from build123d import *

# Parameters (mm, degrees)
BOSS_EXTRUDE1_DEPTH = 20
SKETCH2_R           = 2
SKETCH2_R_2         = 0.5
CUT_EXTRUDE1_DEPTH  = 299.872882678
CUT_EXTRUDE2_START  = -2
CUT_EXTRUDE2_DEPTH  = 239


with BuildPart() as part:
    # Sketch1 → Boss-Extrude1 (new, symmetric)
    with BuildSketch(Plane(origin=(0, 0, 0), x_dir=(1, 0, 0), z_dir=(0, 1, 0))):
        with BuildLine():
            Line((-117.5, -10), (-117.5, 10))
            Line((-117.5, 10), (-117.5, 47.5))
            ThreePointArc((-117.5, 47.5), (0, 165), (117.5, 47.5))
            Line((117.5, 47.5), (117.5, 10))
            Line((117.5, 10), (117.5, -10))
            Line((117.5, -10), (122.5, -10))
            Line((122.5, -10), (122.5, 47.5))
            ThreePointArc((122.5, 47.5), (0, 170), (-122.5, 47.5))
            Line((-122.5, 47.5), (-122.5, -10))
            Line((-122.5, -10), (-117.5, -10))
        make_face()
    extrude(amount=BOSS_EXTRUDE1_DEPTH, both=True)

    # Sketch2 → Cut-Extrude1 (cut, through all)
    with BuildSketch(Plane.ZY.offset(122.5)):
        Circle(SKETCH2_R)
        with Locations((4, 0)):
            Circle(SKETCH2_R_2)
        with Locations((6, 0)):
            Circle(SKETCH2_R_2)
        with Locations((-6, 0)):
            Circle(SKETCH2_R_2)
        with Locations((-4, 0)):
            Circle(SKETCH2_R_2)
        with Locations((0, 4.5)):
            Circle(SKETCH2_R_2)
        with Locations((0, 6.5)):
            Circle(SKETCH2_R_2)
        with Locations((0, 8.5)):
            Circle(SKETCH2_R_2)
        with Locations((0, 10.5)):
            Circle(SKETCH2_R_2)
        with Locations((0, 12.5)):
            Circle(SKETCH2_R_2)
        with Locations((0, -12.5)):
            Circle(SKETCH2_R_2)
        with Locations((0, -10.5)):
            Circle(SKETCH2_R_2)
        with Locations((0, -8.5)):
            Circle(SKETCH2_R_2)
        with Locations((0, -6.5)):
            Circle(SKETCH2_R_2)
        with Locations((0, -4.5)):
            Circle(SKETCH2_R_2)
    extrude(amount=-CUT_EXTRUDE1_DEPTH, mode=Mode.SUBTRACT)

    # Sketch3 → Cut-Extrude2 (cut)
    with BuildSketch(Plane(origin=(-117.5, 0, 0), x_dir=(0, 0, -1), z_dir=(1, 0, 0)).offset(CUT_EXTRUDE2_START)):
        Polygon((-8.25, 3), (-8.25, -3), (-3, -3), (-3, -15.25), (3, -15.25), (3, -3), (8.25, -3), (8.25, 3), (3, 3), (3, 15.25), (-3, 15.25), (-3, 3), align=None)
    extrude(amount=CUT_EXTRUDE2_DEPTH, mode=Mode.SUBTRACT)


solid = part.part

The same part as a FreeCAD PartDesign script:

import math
import FreeCAD as App
import Part
import Sketcher

V = App.Vector
Q = App.Units.Quantity

doc = App.newDocument("Part")
params = doc.addObject("Spreadsheet::Sheet", "Params")
for row, (alias, value) in enumerate([
    ("sketch1_radius", "117.5 mm"),
    ("sketch1_radius2", "122.5 mm"),
    ("sketch1_height", "57.5 mm"),
    ("pad1_length", "40 mm"),
    ("sketch2_diameter", "4 mm"),
    ("sketch2_diameter2", "1 mm"),
    ("sketch3_width", "6 mm"),
    ("sketch3_width2", "12.25 mm"),
    ("sketch3_height", "5.25 mm"),
    ("pocket2_length", "239 mm"),
], start=1):
    params.set(f"A{row}", alias)
    params.set(f"B{row}", "=" + value)
    params.setAlias(f"B{row}", alias)

body = doc.addObject("PartDesign::Body", "Body")

# Sketch on XZ plane
sketch1 = body.newObject("Sketcher::SketchObject", "Sketch")
sketch1.AttachmentSupport = (doc.getObject("XZ_Plane"), [""])
sketch1.MapMode = "FlatFace"
sketch1.addGeometry([
    Part.LineSegment(V(-118, 10, 0), V(-118, -48, 0)),  # 0
    Part.ArcOfCircle(Part.Circle(V(0, -48, 0), V(0, 0, 1), 118), math.radians(180), math.radians(360)),  # 1
    Part.LineSegment(V(118, -48, 0), V(118, 10, 0)),  # 2
    Part.LineSegment(V(118, 10, 0), V(122, 10, 0)),  # 3
    Part.LineSegment(V(122, 10, 0), V(122, -48, 0)),  # 4
    Part.ArcOfCircle(Part.Circle(V(0, -48, 0), V(0, 0, 1), 122), math.radians(180), math.radians(360)),  # 5
    Part.LineSegment(V(-122, -48, 0), V(-122, 10, 0)),  # 6
    Part.LineSegment(V(-122, 10, 0), V(-118, 10, 0)),  # 7
], False)
sketch1.addConstraint([
    Sketcher.Constraint("Tangent", 0, 2, 1, 1),
    Sketcher.Constraint("Tangent", 1, 2, 2, 1),
    Sketcher.Constraint("Coincident", 2, 2, 3, 1),
    Sketcher.Constraint("Coincident", 3, 2, 4, 1),
    Sketcher.Constraint("Tangent", 4, 2, 5, 2),
    Sketcher.Constraint("Tangent", 5, 1, 6, 1),
    Sketcher.Constraint("Coincident", 6, 2, 7, 1),
    Sketcher.Constraint("Coincident", 7, 2, 0, 1),
    Sketcher.Constraint("Vertical", 0),
    Sketcher.Constraint("Vertical", 2),
    Sketcher.Constraint("Horizontal", 3),
    Sketcher.Constraint("Vertical", 4),
    Sketcher.Constraint("Vertical", 6),
    Sketcher.Constraint("Horizontal", 7),
    Sketcher.Constraint("Coincident", 5, 3, 1, 3),
    Sketcher.Constraint("Symmetric", 3, 2, 6, 2, -2),
    Sketcher.Constraint("Radius", 1, Q("117.5 mm")),
    Sketcher.Constraint("Radius", 5, Q("122.5 mm")),
    Sketcher.Constraint("DistanceY", 0, 2, 0, 1, Q("57.5 mm")),
    Sketcher.Constraint("DistanceY", -1, 1, 2, 2, Q("10 mm")),
])
sketch1.setExpression("Constraints[16]", "Params.sketch1_radius")
sketch1.setExpression("Constraints[17]", "Params.sketch1_radius2")
sketch1.setExpression("Constraints[18]", "Params.sketch1_height")
pad1 = body.newObject("PartDesign::Pad", "Pad")
pad1.Profile = sketch1
pad1.setExpression("Length", "Params.pad1_length")
pad1.Midplane = True

# Sketch on YZ plane
sketch2 = body.newObject("Sketcher::SketchObject", "Sketch001")
sketch2.AttachmentSupport = (doc.getObject("YZ_Plane"), [""])
sketch2.MapMode = "FlatFace"
sketch2.AttachmentOffset = App.Placement(V(0, 0, -122.5), App.Rotation())
sketch2.addGeometry([
    Part.Circle(V(0, 0, 0), V(0, 0, 1), 2),  # 0
    Part.Circle(V(0, 4, 0), V(0, 0, 1), 0.5),  # 1
    Part.Circle(V(0, 6, 0), V(0, 0, 1), 0.5),  # 2
    Part.Circle(V(0, -6, 0), V(0, 0, 1), 0.5),  # 3
    Part.Circle(V(0, -4, 0), V(0, 0, 1), 0.5),  # 4
    Part.Circle(V(4.5, 0, 0), V(0, 0, 1), 0.5),  # 5
    Part.Circle(V(6.5, 0, 0), V(0, 0, 1), 0.5),  # 6
    Part.Circle(V(8.5, 0, 0), V(0, 0, 1), 0.5),  # 7
    Part.Circle(V(10.5, 0, 0), V(0, 0, 1), 0.5),  # 8
    Part.Circle(V(12.5, 0, 0), V(0, 0, 1), 0.5),  # 9
    Part.Circle(V(-12.5, 0, 0), V(0, 0, 1), 0.5),  # 10
    Part.Circle(V(-10.5, 0, 0), V(0, 0, 1), 0.5),  # 11
    Part.Circle(V(-8.5, 0, 0), V(0, 0, 1), 0.5),  # 12
    Part.Circle(V(-6.5, 0, 0), V(0, 0, 1), 0.5),  # 13
    Part.Circle(V(-4.5, 0, 0), V(0, 0, 1), 0.5),  # 14
], False)
sketch2.addConstraint([
    Sketcher.Constraint("Coincident", 0, 3, -1, 1),
    Sketcher.Constraint("Equal", 1, 2),
    Sketcher.Constraint("Equal", 2, 3),
    Sketcher.Constraint("Equal", 3, 4),
    Sketcher.Constraint("Equal", 4, 5),
    Sketcher.Constraint("Equal", 5, 6),
    Sketcher.Constraint("Equal", 6, 7),
    Sketcher.Constraint("Equal", 7, 8),
    Sketcher.Constraint("Equal", 8, 9),
    Sketcher.Constraint("Equal", 9, 10),
    Sketcher.Constraint("Equal", 10, 11),
    Sketcher.Constraint("Equal", 11, 12),
    Sketcher.Constraint("Equal", 12, 13),
    Sketcher.Constraint("Equal", 13, 14),
    Sketcher.Constraint("Symmetric", 2, 3, 3, 3, -1, 1),
    Sketcher.Constraint("Symmetric", 1, 3, 4, 3, -1, 1),
    Sketcher.Constraint("Symmetric", 9, 3, 10, 3, -1, 1),
    Sketcher.Constraint("Symmetric", 8, 3, 11, 3, -1, 1),
    Sketcher.Constraint("Symmetric", 7, 3, 12, 3, -1, 1),
    Sketcher.Constraint("Symmetric", 6, 3, 13, 3, -1, 1),
    Sketcher.Constraint("Symmetric", 5, 3, 14, 3, -1, 1),
    Sketcher.Constraint("PointOnObject", 1, 3, -2),
    Sketcher.Constraint("PointOnObject", 2, 3, -2),
    Sketcher.Constraint("PointOnObject", 5, 3, -1),
    Sketcher.Constraint("PointOnObject", 6, 3, -1),
    Sketcher.Constraint("PointOnObject", 7, 3, -1),
    Sketcher.Constraint("PointOnObject", 8, 3, -1),
    Sketcher.Constraint("PointOnObject", 9, 3, -1),
    Sketcher.Constraint("Diameter", 0, Q("4 mm")),
    Sketcher.Constraint("Diameter", 1, Q("1 mm")),
    Sketcher.Constraint("DistanceY", -1, 1, 1, 3, Q("4 mm")),
    Sketcher.Constraint("DistanceY", -1, 1, 2, 3, Q("6 mm")),
    Sketcher.Constraint("DistanceX", 5, 3, 6, 3, Q("2 mm")),
    Sketcher.Constraint("DistanceX", 6, 3, 7, 3, Q("2 mm")),
    Sketcher.Constraint("DistanceX", 7, 3, 8, 3, Q("2 mm")),
    Sketcher.Constraint("DistanceX", 8, 3, 9, 3, Q("2 mm")),
    Sketcher.Constraint("DistanceX", -1, 1, 5, 3, Q("4.5 mm")),
])
sketch2.setExpression("Constraints[28]", "Params.sketch2_diameter")
sketch2.setExpression("Constraints[29]", "Params.sketch2_diameter2")
pocket1 = body.newObject("PartDesign::Pocket", "Pocket")
pocket1.Profile = sketch2
pocket1.Type = "ThroughAll"
pocket1.Reversed = True

# Sketch on YZ plane
sketch3 = body.newObject("Sketcher::SketchObject", "Sketch002")
sketch3.AttachmentSupport = (doc.getObject("YZ_Plane"), [""])
sketch3.MapMode = "FlatFace"
sketch3.AttachmentOffset = App.Placement(V(0, 0, -119.5), App.Rotation())
sketch3.addGeometry([
    Part.LineSegment(V(3, 8, 0), V(-3, 8, 0)),  # 0
    Part.LineSegment(V(-3, 8, 0), V(-3, 3, 0)),  # 1
    Part.LineSegment(V(-3, 3, 0), V(-15, 3, 0)),  # 2
    Part.LineSegment(V(-15, 3, 0), V(-15, -3, 0)),  # 3
    Part.LineSegment(V(-15, -3, 0), V(-3, -3, 0)),  # 4
    Part.LineSegment(V(-3, -3, 0), V(-3, -8, 0)),  # 5
    Part.LineSegment(V(-3, -8, 0), V(3, -8, 0)),  # 6
    Part.LineSegment(V(3, -8, 0), V(3, -3, 0)),  # 7
    Part.LineSegment(V(3, -3, 0), V(15, -3, 0)),  # 8
    Part.LineSegment(V(15, -3, 0), V(15, 3, 0)),  # 9
    Part.LineSegment(V(15, 3, 0), V(3, 3, 0)),  # 10
    Part.LineSegment(V(3, 3, 0), V(3, 8, 0)),  # 11
], False)
sketch3.addConstraint([
    Sketcher.Constraint("Coincident", 0, 2, 1, 1),
    Sketcher.Constraint("Coincident", 1, 2, 2, 1),
    Sketcher.Constraint("Coincident", 2, 2, 3, 1),
    Sketcher.Constraint("Coincident", 3, 2, 4, 1),
    Sketcher.Constraint("Coincident", 4, 2, 5, 1),
    Sketcher.Constraint("Coincident", 5, 2, 6, 1),
    Sketcher.Constraint("Coincident", 6, 2, 7, 1),
    Sketcher.Constraint("Coincident", 7, 2, 8, 1),
    Sketcher.Constraint("Coincident", 8, 2, 9, 1),
    Sketcher.Constraint("Coincident", 9, 2, 10, 1),
    Sketcher.Constraint("Coincident", 10, 2, 11, 1),
    Sketcher.Constraint("Coincident", 11, 2, 0, 1),
    Sketcher.Constraint("Horizontal", 0),
    Sketcher.Constraint("Vertical", 1),
    Sketcher.Constraint("Horizontal", 2),
    Sketcher.Constraint("Vertical", 3),
    Sketcher.Constraint("Horizontal", 4),
    Sketcher.Constraint("Vertical", 5),
    Sketcher.Constraint("Horizontal", 6),
    Sketcher.Constraint("Vertical", 7),
    Sketcher.Constraint("Horizontal", 8),
    Sketcher.Constraint("Vertical", 9),
    Sketcher.Constraint("Horizontal", 10),
    Sketcher.Constraint("Vertical", 11),
    Sketcher.Constraint("Symmetric", 0, 2, 6, 2, -1, 1),
    Sketcher.Constraint("Symmetric", 2, 2, 8, 2, -1, 1),
    Sketcher.Constraint("Symmetric", 4, 2, 10, 2, -1, 1),
    Sketcher.Constraint("Symmetric", 4, 2, 7, 2, -2),
    Sketcher.Constraint("Equal", 6, 3),
    Sketcher.Constraint("DistanceX", 0, 2, 0, 1, Q("6 mm")),
    Sketcher.Constraint("DistanceX", 2, 2, 2, 1, Q("12.25 mm")),
    Sketcher.Constraint("DistanceY", 1, 2, 1, 1, Q("5.25 mm")),
])
sketch3.setExpression("Constraints[29]", "Params.sketch3_width")
sketch3.setExpression("Constraints[30]", "Params.sketch3_width2")
sketch3.setExpression("Constraints[31]", "Params.sketch3_height")
pocket2 = body.newObject("PartDesign::Pocket", "Pocket001")
pocket2.Profile = sketch3
pocket2.setExpression("Length", "Params.pocket2_length")
pocket2.Reversed = True

doc.recompute()
